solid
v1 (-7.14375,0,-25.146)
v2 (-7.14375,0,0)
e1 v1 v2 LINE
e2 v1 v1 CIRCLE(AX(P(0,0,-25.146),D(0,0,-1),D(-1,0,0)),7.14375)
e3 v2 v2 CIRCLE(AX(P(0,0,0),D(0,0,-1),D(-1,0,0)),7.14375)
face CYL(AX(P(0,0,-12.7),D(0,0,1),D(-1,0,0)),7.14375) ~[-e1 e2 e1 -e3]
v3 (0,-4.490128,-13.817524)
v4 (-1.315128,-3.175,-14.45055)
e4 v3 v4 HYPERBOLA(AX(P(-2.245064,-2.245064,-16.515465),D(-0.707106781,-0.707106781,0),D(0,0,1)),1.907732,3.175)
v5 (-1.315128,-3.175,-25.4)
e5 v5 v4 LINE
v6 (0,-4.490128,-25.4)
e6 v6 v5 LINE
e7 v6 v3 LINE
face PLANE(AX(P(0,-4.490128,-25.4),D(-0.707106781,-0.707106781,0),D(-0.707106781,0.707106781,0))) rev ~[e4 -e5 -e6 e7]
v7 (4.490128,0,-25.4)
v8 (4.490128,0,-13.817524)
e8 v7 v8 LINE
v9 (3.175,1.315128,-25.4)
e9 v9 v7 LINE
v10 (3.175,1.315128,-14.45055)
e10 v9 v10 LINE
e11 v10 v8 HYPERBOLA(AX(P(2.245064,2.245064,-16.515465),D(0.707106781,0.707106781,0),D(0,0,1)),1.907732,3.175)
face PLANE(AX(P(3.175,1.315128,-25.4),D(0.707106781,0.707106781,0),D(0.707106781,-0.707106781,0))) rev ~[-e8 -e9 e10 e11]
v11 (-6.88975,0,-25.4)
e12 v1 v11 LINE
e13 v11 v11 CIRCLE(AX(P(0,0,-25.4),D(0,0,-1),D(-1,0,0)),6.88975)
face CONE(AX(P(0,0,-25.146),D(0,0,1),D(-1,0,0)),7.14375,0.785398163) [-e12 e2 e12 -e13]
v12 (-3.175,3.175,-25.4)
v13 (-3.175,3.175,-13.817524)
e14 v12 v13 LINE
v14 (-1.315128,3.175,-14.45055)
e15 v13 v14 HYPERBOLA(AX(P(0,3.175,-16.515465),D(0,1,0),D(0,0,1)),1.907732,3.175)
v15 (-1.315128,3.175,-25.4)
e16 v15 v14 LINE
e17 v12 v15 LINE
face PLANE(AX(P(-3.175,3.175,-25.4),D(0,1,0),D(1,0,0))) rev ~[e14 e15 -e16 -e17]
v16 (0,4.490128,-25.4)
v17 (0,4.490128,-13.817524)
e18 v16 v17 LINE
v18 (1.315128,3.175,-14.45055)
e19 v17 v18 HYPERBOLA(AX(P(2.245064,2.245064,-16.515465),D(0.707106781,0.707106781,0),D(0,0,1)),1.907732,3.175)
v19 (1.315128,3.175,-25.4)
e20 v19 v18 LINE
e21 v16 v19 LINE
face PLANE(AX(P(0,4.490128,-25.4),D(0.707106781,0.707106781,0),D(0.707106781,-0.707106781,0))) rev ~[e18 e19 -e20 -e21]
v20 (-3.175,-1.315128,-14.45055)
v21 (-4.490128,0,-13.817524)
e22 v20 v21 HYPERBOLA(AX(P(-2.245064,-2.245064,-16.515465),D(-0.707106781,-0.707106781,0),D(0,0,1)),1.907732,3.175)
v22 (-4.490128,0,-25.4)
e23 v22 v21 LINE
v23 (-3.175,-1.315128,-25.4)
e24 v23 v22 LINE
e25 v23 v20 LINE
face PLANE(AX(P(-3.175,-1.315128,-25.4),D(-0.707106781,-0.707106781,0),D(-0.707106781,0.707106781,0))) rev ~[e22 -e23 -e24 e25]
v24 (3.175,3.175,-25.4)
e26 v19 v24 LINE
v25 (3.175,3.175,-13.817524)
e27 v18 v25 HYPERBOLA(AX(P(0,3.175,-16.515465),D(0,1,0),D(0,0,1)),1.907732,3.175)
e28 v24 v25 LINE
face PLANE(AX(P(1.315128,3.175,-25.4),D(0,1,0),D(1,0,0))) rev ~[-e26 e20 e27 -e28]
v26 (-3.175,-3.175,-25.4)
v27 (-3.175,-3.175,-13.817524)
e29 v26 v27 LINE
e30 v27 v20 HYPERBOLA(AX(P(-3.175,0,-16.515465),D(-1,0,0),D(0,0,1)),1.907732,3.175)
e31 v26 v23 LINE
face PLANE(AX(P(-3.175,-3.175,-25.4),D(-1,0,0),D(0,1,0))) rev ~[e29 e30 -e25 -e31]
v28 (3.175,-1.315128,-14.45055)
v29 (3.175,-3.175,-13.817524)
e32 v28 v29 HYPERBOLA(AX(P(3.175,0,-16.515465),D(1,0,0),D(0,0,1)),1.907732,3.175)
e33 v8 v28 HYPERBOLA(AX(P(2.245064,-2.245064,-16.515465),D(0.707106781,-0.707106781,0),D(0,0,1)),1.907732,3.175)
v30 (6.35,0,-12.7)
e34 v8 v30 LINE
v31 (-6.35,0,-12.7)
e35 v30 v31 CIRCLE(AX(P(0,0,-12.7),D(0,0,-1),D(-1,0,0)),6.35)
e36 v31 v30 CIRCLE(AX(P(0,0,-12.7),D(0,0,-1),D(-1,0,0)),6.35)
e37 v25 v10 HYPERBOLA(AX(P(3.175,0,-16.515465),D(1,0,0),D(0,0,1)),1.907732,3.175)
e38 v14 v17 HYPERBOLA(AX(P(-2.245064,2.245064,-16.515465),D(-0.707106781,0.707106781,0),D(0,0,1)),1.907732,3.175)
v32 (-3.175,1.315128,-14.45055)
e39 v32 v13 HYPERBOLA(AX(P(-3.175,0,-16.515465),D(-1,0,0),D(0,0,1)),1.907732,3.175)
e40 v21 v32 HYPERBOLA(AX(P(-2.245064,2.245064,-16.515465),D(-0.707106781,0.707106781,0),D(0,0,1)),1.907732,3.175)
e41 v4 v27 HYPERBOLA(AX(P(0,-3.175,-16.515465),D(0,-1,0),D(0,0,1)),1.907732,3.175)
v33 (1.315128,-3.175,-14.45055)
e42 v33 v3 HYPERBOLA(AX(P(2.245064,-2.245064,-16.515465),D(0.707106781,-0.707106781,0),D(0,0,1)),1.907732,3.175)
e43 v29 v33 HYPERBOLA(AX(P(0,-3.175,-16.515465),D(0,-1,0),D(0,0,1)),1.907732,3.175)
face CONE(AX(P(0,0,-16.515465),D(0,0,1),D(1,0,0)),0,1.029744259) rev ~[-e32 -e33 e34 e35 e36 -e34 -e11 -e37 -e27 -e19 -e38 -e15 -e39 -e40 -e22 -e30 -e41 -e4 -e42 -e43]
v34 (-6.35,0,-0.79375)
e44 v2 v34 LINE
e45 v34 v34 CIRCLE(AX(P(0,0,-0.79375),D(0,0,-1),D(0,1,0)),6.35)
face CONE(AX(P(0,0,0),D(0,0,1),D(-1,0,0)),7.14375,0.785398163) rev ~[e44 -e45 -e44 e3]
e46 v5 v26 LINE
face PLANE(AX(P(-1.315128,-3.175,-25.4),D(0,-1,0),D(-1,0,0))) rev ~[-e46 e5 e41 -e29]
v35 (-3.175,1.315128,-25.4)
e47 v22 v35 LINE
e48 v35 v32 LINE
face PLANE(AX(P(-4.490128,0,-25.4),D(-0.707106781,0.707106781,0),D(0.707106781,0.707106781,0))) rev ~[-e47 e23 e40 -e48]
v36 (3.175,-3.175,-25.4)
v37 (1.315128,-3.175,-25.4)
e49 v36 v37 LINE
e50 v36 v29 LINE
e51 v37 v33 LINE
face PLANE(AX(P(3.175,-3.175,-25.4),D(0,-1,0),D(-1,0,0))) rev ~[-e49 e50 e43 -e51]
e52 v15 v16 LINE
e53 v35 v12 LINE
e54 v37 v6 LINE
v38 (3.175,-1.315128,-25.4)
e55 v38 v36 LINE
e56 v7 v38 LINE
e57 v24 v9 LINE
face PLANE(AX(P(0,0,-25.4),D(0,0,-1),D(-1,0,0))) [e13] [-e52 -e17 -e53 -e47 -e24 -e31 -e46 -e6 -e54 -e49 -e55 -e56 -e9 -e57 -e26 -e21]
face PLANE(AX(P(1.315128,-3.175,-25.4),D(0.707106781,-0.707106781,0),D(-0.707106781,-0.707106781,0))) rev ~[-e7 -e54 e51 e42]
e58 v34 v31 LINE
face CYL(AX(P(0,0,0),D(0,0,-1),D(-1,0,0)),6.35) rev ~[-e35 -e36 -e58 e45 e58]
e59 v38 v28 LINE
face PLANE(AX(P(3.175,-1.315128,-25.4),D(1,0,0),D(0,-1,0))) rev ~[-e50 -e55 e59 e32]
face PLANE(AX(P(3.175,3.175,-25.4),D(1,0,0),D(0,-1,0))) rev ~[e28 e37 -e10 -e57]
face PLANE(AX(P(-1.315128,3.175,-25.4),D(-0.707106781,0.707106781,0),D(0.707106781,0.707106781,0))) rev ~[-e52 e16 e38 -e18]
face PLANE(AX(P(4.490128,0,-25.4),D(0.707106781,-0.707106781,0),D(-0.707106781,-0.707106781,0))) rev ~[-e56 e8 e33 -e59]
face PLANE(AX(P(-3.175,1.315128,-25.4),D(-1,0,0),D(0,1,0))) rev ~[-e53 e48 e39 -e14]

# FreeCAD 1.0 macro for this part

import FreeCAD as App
import Part
import Sketcher
Q = App.Units.Quantity


def edges_at(feature, points):
    """Names of the edges that pass closest to the given points."""
    edges = feature.Shape.Edges
    near = lambda p: min(range(len(edges)), key=lambda i: edges[i].distToShape(Part.Vertex(*p))[0])
    return sorted({f"Edge{near(p) + 1}" for p in points})

doc = App.newDocument("Part")
body = doc.addObject("PartDesign::Body", "Body")

# Sketch on XZ plane
sketch1 = doc.addObject("Sketcher::SketchObject", "Sketch")
body.addObject(sketch1)
sketch1.AttachmentSupport = (doc.XZ_Plane, [""])
sketch1.MapMode = "FlatFace"
sketch1.addGeometry([
    Part.LineSegment(App.Vector(-7.14375, 0, 0), App.Vector(-7.14375, -25.4, 0)),
    Part.LineSegment(App.Vector(-7.14375, -25.4, 0), App.Vector(0, -25.4, 0)),
    Part.LineSegment(App.Vector(0, -25.4, 0), App.Vector(0, 0, 0)),
    Part.LineSegment(App.Vector(0, 0, 0), App.Vector(-7.14375, 0, 0)),
], False)
sketch1.addConstraint([
    Sketcher.Constraint("Coincident", 0, 2, 1, 1),
    Sketcher.Constraint("Coincident", 1, 2, 2, 1),
    Sketcher.Constraint("Coincident", 2, 2, 3, 1),
    Sketcher.Constraint("Coincident", 3, 2, 0, 1),
    Sketcher.Constraint("Vertical", 0),
    Sketcher.Constraint("Horizontal", 1),
    Sketcher.Constraint("Vertical", 2),
    Sketcher.Constraint("Horizontal", 3),
    Sketcher.Constraint("Coincident", 2, 2, -1, 1),
    Sketcher.Constraint("DistanceY", 0, 2, 0, 1, Q("1 in")),
    Sketcher.Constraint("DistanceX", 1, 1, 1, 2, Q("0.28125 in")),
])
revolution = doc.addObject("PartDesign::Revolution", "Revolution")
body.addObject(revolution)
revolution.Profile = sketch1
revolution.ReferenceAxis = (sketch1, ["V_Axis"])
revolution.Angle = 360

# Sketch on XY plane
sketch2 = doc.addObject("Sketcher::SketchObject", "Sketch001")
body.addObject(sketch2)
sketch2.AttachmentSupport = (doc.XY_Plane, [""])
sketch2.MapMode = "FlatFace"
sketch2.addGeometry(Part.Circle(App.Vector(0, 0, 0), App.Vector(0, 0, 1), 6.35), False)
sketch2.addConstraint([
    Sketcher.Constraint("Coincident", 0, 3, -1, 1),
    Sketcher.Constraint("Diameter", 0, Q("0.5 in")),
])
doc.recompute()
hole = doc.addObject("PartDesign::Hole", "Hole")
body.addObject(hole)
hole.Profile = sketch2
hole.ThreadType = "None"
hole.Diameter = Q("0.5 in")
hole.DepthType = "Dimension"
hole.Depth = Q("0.5 in")
hole.DrillPoint = "Angled"
hole.DrillPointAngle = 118
hole.HoleCutType = "Countersink"
hole.HoleCutDiameter = Q("0.5625 in")
hole.HoleCutCountersinkAngle = 90

# Sketch on XY plane
sketch3 = doc.addObject("Sketcher::SketchObject", "Sketch002")
body.addObject(sketch3)
sketch3.AttachmentSupport = (doc.XY_Plane, [""])
sketch3.MapMode = "FlatFace"
sketch3.AttachmentOffset = App.Placement(App.Vector(0, 0, -1 * 25.4), App.Rotation())
sketch3.addGeometry([
    Part.LineSegment(App.Vector(-3.175, 1.315128, 0), App.Vector(-3.175, 3.175, 0)),  # 0
    Part.LineSegment(App.Vector(-3.175, 3.175, 0), App.Vector(-1.315128, 3.175, 0)),  # 1
    Part.LineSegment(App.Vector(-1.315128, 3.175, 0), App.Vector(0, 4.490128, 0)),  # 2
    Part.LineSegment(App.Vector(0, 4.490128, 0), App.Vector(1.315128, 3.175, 0)),  # 3
    Part.LineSegment(App.Vector(1.315128, 3.175, 0), App.Vector(3.175, 3.175, 0)),  # 4
    Part.LineSegment(App.Vector(3.175, 3.175, 0), App.Vector(3.175, 1.315128, 0)),  # 5
    Part.LineSegment(App.Vector(3.175, 1.315128, 0), App.Vector(4.490128, 0, 0)),  # 6
    Part.LineSegment(App.Vector(4.490128, 0, 0), App.Vector(3.175, -1.315128, 0)),  # 7
    Part.LineSegment(App.Vector(3.175, -1.315128, 0), App.Vector(3.175, -3.175, 0)),  # 8
    Part.LineSegment(App.Vector(3.175, -3.175, 0), App.Vector(1.315128, -3.175, 0)),  # 9
    Part.LineSegment(App.Vector(1.315128, -3.175, 0), App.Vector(0, -4.490128, 0)),  # 10
    Part.LineSegment(App.Vector(0, -4.490128, 0), App.Vector(-1.315128, -3.175, 0)),  # 11
    Part.LineSegment(App.Vector(-1.315128, -3.175, 0), App.Vector(-3.175, -3.175, 0)),  # 12
    Part.LineSegment(App.Vector(-3.175, -3.175, 0), App.Vector(-3.175, -1.315128, 0)),  # 13
    Part.LineSegment(App.Vector(-3.175, -1.315128, 0), App.Vector(-4.490128, 0, 0)),  # 14
    Part.LineSegment(App.Vector(-4.490128, 0, 0), App.Vector(-3.175, 1.315128, 0)),  # 15
], False)
sketch3.addConstraint([
    Sketcher.Constraint("Coincident", 0, 2, 1, 1),
    Sketcher.Constraint("Coincident", 1, 2, 2, 1),
    Sketcher.Constraint("Coincident", 2, 2, 3, 1),
    Sketcher.Constraint("Coincident", 3, 2, 4, 1),
    Sketcher.Constraint("Coincident", 4, 2, 5, 1),
    Sketcher.Constraint("Coincident", 5, 2, 6, 1),
    Sketcher.Constraint("Coincident", 6, 2, 7, 1),
    Sketcher.Constraint("Coincident", 7, 2, 8, 1),
    Sketcher.Constraint("Coincident", 8, 2, 9, 1),
    Sketcher.Constraint("Coincident", 9, 2, 10, 1),
    Sketcher.Constraint("Coincident", 10, 2, 11, 1),
    Sketcher.Constraint("Coincident", 11, 2, 12, 1),
    Sketcher.Constraint("Coincident", 12, 2, 13, 1),
    Sketcher.Constraint("Coincident", 13, 2, 14, 1),
    Sketcher.Constraint("Coincident", 14, 2, 15, 1),
    Sketcher.Constraint("Coincident", 15, 2, 0, 1),
    Sketcher.Constraint("Vertical", 0),
    Sketcher.Constraint("Horizontal", 1),
    Sketcher.Constraint("Horizontal", 4),
    Sketcher.Constraint("Vertical", 5),
    Sketcher.Constraint("Vertical", 8),
    Sketcher.Constraint("Horizontal", 9),
    Sketcher.Constraint("Horizontal", 12),
    Sketcher.Constraint("Vertical", 13),
    Sketcher.Constraint("Symmetric", 0, 2, 8, 2, -1, 1),
    Sketcher.Constraint("Symmetric", 2, 2, 10, 2, -1, 1),
    Sketcher.Constraint("Symmetric", 3, 2, 11, 2, -1, 1),
    Sketcher.Constraint("Symmetric", 5, 2, 13, 2, -1, 1),
    Sketcher.Constraint("Symmetric", 6, 2, 14, 2, -1, 1),
    Sketcher.Constraint("Symmetric", 1, 2, 3, 2, -2),
    Sketcher.Constraint("Symmetric", 7, 2, 13, 2, -2),
    Sketcher.Constraint("PointOnObject", 2, 2, -2),
    Sketcher.Constraint("PointOnObject", 6, 2, -1),
    Sketcher.Constraint("Perpendicular", 2, 3),
    Sketcher.Constraint("Parallel", 3, 6),
    Sketcher.Constraint("Parallel", 7, 10),
    Sketcher.Constraint("Perpendicular", 14, 15),
    Sketcher.Constraint("Equal", 12, 0),
    Sketcher.Constraint("Equal", 3, 6),
    Sketcher.Constraint("DistanceX", 0, 2, 4, 2, Q("0.25 in")),
    Sketcher.Constraint("DistanceX", 1, 1, 1, 2, Q("1.859872 mm")),
])
pocket1 = doc.addObject("PartDesign::Pocket", "Pocket")
body.addObject(pocket1)
pocket1.Profile = sketch3
pocket1.Length = Q("0.5 in")
pocket1.Reversed = True
doc.recompute()

chamfer = doc.addObject("PartDesign::Chamfer", "Chamfer")
body.addObject(chamfer)
chamfer.Base = (pocket1, edges_at(pocket1, [(7.144, 0, -25.4)]))
chamfer.Size = Q("0.01 in")

doc.recompute()
